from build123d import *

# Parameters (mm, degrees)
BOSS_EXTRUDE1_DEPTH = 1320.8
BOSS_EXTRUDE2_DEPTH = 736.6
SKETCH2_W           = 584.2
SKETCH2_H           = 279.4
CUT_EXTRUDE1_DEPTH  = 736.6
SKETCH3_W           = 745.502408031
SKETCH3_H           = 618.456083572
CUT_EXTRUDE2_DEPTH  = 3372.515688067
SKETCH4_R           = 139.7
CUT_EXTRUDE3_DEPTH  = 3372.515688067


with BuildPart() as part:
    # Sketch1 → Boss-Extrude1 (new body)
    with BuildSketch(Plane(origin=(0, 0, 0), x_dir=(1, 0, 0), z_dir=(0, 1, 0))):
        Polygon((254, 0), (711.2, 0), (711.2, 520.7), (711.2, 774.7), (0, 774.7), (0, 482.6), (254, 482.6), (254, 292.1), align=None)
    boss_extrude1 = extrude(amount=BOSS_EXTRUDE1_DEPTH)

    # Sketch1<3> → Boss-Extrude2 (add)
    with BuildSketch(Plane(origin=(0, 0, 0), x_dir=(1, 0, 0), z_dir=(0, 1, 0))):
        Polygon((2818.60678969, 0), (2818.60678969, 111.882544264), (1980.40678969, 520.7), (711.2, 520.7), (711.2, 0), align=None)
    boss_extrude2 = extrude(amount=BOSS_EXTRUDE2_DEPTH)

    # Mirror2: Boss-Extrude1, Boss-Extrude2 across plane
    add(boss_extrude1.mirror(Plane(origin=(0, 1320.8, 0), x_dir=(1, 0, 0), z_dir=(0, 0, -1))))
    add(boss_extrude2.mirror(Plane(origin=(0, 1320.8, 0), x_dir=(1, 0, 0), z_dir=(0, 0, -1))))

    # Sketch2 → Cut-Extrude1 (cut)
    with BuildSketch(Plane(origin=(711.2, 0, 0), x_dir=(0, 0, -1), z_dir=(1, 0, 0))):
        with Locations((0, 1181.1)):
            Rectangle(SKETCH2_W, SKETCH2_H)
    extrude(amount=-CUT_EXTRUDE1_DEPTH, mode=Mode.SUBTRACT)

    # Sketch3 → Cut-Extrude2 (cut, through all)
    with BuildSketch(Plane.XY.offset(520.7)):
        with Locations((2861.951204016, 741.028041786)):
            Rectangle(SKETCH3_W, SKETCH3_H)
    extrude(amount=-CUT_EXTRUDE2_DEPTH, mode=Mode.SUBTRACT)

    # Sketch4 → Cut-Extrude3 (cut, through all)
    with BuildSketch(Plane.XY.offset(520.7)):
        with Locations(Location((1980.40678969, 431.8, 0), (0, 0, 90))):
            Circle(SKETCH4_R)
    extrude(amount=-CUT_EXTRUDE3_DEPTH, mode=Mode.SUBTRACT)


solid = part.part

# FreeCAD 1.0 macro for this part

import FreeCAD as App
import Part
import Sketcher
from FreeCAD import Vector
Q = App.Units.Quantity


def add_polygon(sketch, points):
    """Adds a closed chain of lines whose ends are joined by coincident constraints."""
    first, n = sketch.GeometryCount, len(points)
    for a, b in zip(points, points[1:] + points[:1]):
        sketch.addGeometry(Part.LineSegment(App.Vector(*a, 0), App.Vector(*b, 0)), False)
    for i in range(n):
        sketch.addConstraint(Sketcher.Constraint("Coincident", first + i, 2, first + (i + 1) % n, 1))

doc = App.newDocument("Part")
body = doc.addObject("PartDesign::Body", "Body")

# Sketch on XZ plane
sketch1 = body.newObject("Sketcher::SketchObject", "Sketch")
sketch1.AttachmentSupport = (doc.getObject("XZ_Plane"), [""])
sketch1.MapMode = "FlatFace"
add_polygon(sketch1, [(254, 0), (711.2, 0), (711.2, -774.7), (0, -774.7), (0, -482.6), (254, -482.6)])  # lines 0-5
sketch1.addConstraint([
    Sketcher.Constraint("Horizontal", 0),
    Sketcher.Constraint("Vertical", 1),
    Sketcher.Constraint("Horizontal", 2),
    Sketcher.Constraint("Vertical", 3),
    Sketcher.Constraint("Horizontal", 4),
    Sketcher.Constraint("Vertical", 5),
    Sketcher.Constraint("PointOnObject", 0, 2, -1),
    Sketcher.Constraint("PointOnObject", 2, 2, -2),
    Sketcher.Constraint("DistanceX", 0, 1, 0, 2, Q("18 in")),
    Sketcher.Constraint("DistanceX", 2, 2, 2, 1, Q("28 in")),
    Sketcher.Constraint("DistanceY", 5, 1, 5, 2, Q("19 in")),
    Sketcher.Constraint("DistanceY", 1, 2, 1, 1, Q("30.5 in")),
])
pad1 = body.newObject("PartDesign::Pad", "Pad")
pad1.Profile = sketch1
pad1.Length = Q("52 in")
pad1.Reversed = True

# Sketch on XZ plane
sketch2 = body.newObject("Sketcher::SketchObject", "Sketch001")
sketch2.AttachmentSupport = (doc.getObject("XZ_Plane"), [""])
sketch2.MapMode = "FlatFace"
add_polygon(sketch2, [(2818.60679, 0), (2818.60679, -111.882544), (1980.40679, -520.7), (711.2, -520.7), (711.2, 0)])  # lines 0-4
sketch2.addConstraint([
    Sketcher.Constraint("Vertical", 0),
    Sketcher.Constraint("Horizontal", 2),
    Sketcher.Constraint("Vertical", 3),
    Sketcher.Constraint("Horizontal", 4),
    Sketcher.Constraint("PointOnObject", 3, 2, -1),
    Sketcher.Constraint("DistanceY", 3, 1, 3, 2, Q("20.5 in")),
    Sketcher.Constraint("DistanceX", -1, 1, 2, 2, Q("28 in")),
    Sketcher.Constraint("Angle", 1, Q("-154 deg")),
    Sketcher.Constraint("DistanceX", 1, 2, 0, 2, Q("33 in")),
    Sketcher.Constraint("DistanceX", 2, 2, 2, 1, Q("1269.20679 mm")),
])
pad2 = body.newObject("PartDesign::Pad", "Pad001")
pad2.Profile = sketch2
pad2.Length = Q("29 in")
pad2.Reversed = True
doc.recompute()

mirrored = body.newObject("PartDesign::Mirrored", "Mirrored")
mirrored.Originals = [pad1, pad2]
mirrored.MirrorPlane = (doc.getObject("XY_Plane"), [""])
body.Tip = mirrored

# Sketch on YZ plane
sketch3 = body.newObject("Sketcher::SketchObject", "Sketch002")
sketch3.AttachmentSupport = (doc.getObject("YZ_Plane"), [""])
sketch3.MapMode = "FlatFace"
sketch3.AttachmentOffset = App.Placement(Vector(0, 0, 28 * 25.4), App.Rotation())
add_polygon(sketch3, [(1320.8, 292.1), (1041.4, 292.1), (1041.4, -292.1), (1320.8, -292.1)])  # lines 0-3
sketch3.addConstraint([
    Sketcher.Constraint("Horizontal", 0),
    Sketcher.Constraint("Vertical", 1),
    Sketcher.Constraint("Horizontal", 2),
    Sketcher.Constraint("Vertical", 3),
    Sketcher.Constraint("DistanceX", 0, 2, 0, 1, Q("11 in")),
    Sketcher.Constraint("DistanceY", 1, 2, 1, 1, Q("23 in")),
    Sketcher.Constraint("DistanceX", -1, 1, 0, 2, Q("41 in")),
    Sketcher.Constraint("DistanceY", -1, 1, 0, 2, Q("11.5 in")),
])
pocket1 = body.newObject("PartDesign::Pocket", "Pocket")
pocket1.Profile = sketch3
pocket1.Length = Q("29 in")

# Sketch on XY plane
sketch4 = body.newObject("Sketcher::SketchObject", "Sketch003")
sketch4.AttachmentSupport = (doc.getObject("XY_Plane"), [""])
sketch4.MapMode = "FlatFace"
sketch4.AttachmentOffset = App.Placement(Vector(0, 0, 20.5 * 25.4), App.Rotation())
add_polygon(sketch4, [(2489.2, 1050.256084), (2489.2, 431.8), (3234.702408, 431.8), (3234.702408, 1050.256084)])  # lines 0-3
sketch4.addConstraint([
    Sketcher.Constraint("Vertical", 0),
    Sketcher.Constraint("Horizontal", 1),
    Sketcher.Constraint("Vertical", 2),
    Sketcher.Constraint("Horizontal", 3),
    Sketcher.Constraint("DistanceX", -1, 1, 0, 2, Q("98 in")),
    Sketcher.Constraint("DistanceY", -1, 1, 0, 2, Q("17 in")),
    Sketcher.Constraint("DistanceX", 1, 1, 1, 2, Q("745.502408 mm")),
    Sketcher.Constraint("DistanceY", 0, 2, 0, 1, Q("618.456084 mm")),
])
pocket2 = body.newObject("PartDesign::Pocket", "Pocket001")
pocket2.Profile = sketch4
pocket2.Type = "ThroughAll"

# Sketch on XY plane
sketch5 = body.newObject("Sketcher::SketchObject", "Sketch004")
sketch5.AttachmentSupport = (doc.getObject("XY_Plane"), [""])
sketch5.MapMode = "FlatFace"
sketch5.AttachmentOffset = App.Placement(Vector(0, 0, 20.5 * 25.4), App.Rotation())
sketch5.addGeometry(Part.Circle(Vector(1980.40679, 431.8, 0), Vector(0, 0, 1), 139.7), False)
sketch5.addConstraint([
    Sketcher.Constraint("Diameter", 0, Q("11 in")),
    Sketcher.Constraint("DistanceY", -1, 1, 0, 3, Q("17 in")),
    Sketcher.Constraint("DistanceX", -1, 1, 0, 3, Q("1980.40679 mm")),
])
pocket3 = body.newObject("PartDesign::Pocket", "Pocket002")
pocket3.Profile = sketch5
pocket3.Type = "ThroughAll"

doc.recompute()
